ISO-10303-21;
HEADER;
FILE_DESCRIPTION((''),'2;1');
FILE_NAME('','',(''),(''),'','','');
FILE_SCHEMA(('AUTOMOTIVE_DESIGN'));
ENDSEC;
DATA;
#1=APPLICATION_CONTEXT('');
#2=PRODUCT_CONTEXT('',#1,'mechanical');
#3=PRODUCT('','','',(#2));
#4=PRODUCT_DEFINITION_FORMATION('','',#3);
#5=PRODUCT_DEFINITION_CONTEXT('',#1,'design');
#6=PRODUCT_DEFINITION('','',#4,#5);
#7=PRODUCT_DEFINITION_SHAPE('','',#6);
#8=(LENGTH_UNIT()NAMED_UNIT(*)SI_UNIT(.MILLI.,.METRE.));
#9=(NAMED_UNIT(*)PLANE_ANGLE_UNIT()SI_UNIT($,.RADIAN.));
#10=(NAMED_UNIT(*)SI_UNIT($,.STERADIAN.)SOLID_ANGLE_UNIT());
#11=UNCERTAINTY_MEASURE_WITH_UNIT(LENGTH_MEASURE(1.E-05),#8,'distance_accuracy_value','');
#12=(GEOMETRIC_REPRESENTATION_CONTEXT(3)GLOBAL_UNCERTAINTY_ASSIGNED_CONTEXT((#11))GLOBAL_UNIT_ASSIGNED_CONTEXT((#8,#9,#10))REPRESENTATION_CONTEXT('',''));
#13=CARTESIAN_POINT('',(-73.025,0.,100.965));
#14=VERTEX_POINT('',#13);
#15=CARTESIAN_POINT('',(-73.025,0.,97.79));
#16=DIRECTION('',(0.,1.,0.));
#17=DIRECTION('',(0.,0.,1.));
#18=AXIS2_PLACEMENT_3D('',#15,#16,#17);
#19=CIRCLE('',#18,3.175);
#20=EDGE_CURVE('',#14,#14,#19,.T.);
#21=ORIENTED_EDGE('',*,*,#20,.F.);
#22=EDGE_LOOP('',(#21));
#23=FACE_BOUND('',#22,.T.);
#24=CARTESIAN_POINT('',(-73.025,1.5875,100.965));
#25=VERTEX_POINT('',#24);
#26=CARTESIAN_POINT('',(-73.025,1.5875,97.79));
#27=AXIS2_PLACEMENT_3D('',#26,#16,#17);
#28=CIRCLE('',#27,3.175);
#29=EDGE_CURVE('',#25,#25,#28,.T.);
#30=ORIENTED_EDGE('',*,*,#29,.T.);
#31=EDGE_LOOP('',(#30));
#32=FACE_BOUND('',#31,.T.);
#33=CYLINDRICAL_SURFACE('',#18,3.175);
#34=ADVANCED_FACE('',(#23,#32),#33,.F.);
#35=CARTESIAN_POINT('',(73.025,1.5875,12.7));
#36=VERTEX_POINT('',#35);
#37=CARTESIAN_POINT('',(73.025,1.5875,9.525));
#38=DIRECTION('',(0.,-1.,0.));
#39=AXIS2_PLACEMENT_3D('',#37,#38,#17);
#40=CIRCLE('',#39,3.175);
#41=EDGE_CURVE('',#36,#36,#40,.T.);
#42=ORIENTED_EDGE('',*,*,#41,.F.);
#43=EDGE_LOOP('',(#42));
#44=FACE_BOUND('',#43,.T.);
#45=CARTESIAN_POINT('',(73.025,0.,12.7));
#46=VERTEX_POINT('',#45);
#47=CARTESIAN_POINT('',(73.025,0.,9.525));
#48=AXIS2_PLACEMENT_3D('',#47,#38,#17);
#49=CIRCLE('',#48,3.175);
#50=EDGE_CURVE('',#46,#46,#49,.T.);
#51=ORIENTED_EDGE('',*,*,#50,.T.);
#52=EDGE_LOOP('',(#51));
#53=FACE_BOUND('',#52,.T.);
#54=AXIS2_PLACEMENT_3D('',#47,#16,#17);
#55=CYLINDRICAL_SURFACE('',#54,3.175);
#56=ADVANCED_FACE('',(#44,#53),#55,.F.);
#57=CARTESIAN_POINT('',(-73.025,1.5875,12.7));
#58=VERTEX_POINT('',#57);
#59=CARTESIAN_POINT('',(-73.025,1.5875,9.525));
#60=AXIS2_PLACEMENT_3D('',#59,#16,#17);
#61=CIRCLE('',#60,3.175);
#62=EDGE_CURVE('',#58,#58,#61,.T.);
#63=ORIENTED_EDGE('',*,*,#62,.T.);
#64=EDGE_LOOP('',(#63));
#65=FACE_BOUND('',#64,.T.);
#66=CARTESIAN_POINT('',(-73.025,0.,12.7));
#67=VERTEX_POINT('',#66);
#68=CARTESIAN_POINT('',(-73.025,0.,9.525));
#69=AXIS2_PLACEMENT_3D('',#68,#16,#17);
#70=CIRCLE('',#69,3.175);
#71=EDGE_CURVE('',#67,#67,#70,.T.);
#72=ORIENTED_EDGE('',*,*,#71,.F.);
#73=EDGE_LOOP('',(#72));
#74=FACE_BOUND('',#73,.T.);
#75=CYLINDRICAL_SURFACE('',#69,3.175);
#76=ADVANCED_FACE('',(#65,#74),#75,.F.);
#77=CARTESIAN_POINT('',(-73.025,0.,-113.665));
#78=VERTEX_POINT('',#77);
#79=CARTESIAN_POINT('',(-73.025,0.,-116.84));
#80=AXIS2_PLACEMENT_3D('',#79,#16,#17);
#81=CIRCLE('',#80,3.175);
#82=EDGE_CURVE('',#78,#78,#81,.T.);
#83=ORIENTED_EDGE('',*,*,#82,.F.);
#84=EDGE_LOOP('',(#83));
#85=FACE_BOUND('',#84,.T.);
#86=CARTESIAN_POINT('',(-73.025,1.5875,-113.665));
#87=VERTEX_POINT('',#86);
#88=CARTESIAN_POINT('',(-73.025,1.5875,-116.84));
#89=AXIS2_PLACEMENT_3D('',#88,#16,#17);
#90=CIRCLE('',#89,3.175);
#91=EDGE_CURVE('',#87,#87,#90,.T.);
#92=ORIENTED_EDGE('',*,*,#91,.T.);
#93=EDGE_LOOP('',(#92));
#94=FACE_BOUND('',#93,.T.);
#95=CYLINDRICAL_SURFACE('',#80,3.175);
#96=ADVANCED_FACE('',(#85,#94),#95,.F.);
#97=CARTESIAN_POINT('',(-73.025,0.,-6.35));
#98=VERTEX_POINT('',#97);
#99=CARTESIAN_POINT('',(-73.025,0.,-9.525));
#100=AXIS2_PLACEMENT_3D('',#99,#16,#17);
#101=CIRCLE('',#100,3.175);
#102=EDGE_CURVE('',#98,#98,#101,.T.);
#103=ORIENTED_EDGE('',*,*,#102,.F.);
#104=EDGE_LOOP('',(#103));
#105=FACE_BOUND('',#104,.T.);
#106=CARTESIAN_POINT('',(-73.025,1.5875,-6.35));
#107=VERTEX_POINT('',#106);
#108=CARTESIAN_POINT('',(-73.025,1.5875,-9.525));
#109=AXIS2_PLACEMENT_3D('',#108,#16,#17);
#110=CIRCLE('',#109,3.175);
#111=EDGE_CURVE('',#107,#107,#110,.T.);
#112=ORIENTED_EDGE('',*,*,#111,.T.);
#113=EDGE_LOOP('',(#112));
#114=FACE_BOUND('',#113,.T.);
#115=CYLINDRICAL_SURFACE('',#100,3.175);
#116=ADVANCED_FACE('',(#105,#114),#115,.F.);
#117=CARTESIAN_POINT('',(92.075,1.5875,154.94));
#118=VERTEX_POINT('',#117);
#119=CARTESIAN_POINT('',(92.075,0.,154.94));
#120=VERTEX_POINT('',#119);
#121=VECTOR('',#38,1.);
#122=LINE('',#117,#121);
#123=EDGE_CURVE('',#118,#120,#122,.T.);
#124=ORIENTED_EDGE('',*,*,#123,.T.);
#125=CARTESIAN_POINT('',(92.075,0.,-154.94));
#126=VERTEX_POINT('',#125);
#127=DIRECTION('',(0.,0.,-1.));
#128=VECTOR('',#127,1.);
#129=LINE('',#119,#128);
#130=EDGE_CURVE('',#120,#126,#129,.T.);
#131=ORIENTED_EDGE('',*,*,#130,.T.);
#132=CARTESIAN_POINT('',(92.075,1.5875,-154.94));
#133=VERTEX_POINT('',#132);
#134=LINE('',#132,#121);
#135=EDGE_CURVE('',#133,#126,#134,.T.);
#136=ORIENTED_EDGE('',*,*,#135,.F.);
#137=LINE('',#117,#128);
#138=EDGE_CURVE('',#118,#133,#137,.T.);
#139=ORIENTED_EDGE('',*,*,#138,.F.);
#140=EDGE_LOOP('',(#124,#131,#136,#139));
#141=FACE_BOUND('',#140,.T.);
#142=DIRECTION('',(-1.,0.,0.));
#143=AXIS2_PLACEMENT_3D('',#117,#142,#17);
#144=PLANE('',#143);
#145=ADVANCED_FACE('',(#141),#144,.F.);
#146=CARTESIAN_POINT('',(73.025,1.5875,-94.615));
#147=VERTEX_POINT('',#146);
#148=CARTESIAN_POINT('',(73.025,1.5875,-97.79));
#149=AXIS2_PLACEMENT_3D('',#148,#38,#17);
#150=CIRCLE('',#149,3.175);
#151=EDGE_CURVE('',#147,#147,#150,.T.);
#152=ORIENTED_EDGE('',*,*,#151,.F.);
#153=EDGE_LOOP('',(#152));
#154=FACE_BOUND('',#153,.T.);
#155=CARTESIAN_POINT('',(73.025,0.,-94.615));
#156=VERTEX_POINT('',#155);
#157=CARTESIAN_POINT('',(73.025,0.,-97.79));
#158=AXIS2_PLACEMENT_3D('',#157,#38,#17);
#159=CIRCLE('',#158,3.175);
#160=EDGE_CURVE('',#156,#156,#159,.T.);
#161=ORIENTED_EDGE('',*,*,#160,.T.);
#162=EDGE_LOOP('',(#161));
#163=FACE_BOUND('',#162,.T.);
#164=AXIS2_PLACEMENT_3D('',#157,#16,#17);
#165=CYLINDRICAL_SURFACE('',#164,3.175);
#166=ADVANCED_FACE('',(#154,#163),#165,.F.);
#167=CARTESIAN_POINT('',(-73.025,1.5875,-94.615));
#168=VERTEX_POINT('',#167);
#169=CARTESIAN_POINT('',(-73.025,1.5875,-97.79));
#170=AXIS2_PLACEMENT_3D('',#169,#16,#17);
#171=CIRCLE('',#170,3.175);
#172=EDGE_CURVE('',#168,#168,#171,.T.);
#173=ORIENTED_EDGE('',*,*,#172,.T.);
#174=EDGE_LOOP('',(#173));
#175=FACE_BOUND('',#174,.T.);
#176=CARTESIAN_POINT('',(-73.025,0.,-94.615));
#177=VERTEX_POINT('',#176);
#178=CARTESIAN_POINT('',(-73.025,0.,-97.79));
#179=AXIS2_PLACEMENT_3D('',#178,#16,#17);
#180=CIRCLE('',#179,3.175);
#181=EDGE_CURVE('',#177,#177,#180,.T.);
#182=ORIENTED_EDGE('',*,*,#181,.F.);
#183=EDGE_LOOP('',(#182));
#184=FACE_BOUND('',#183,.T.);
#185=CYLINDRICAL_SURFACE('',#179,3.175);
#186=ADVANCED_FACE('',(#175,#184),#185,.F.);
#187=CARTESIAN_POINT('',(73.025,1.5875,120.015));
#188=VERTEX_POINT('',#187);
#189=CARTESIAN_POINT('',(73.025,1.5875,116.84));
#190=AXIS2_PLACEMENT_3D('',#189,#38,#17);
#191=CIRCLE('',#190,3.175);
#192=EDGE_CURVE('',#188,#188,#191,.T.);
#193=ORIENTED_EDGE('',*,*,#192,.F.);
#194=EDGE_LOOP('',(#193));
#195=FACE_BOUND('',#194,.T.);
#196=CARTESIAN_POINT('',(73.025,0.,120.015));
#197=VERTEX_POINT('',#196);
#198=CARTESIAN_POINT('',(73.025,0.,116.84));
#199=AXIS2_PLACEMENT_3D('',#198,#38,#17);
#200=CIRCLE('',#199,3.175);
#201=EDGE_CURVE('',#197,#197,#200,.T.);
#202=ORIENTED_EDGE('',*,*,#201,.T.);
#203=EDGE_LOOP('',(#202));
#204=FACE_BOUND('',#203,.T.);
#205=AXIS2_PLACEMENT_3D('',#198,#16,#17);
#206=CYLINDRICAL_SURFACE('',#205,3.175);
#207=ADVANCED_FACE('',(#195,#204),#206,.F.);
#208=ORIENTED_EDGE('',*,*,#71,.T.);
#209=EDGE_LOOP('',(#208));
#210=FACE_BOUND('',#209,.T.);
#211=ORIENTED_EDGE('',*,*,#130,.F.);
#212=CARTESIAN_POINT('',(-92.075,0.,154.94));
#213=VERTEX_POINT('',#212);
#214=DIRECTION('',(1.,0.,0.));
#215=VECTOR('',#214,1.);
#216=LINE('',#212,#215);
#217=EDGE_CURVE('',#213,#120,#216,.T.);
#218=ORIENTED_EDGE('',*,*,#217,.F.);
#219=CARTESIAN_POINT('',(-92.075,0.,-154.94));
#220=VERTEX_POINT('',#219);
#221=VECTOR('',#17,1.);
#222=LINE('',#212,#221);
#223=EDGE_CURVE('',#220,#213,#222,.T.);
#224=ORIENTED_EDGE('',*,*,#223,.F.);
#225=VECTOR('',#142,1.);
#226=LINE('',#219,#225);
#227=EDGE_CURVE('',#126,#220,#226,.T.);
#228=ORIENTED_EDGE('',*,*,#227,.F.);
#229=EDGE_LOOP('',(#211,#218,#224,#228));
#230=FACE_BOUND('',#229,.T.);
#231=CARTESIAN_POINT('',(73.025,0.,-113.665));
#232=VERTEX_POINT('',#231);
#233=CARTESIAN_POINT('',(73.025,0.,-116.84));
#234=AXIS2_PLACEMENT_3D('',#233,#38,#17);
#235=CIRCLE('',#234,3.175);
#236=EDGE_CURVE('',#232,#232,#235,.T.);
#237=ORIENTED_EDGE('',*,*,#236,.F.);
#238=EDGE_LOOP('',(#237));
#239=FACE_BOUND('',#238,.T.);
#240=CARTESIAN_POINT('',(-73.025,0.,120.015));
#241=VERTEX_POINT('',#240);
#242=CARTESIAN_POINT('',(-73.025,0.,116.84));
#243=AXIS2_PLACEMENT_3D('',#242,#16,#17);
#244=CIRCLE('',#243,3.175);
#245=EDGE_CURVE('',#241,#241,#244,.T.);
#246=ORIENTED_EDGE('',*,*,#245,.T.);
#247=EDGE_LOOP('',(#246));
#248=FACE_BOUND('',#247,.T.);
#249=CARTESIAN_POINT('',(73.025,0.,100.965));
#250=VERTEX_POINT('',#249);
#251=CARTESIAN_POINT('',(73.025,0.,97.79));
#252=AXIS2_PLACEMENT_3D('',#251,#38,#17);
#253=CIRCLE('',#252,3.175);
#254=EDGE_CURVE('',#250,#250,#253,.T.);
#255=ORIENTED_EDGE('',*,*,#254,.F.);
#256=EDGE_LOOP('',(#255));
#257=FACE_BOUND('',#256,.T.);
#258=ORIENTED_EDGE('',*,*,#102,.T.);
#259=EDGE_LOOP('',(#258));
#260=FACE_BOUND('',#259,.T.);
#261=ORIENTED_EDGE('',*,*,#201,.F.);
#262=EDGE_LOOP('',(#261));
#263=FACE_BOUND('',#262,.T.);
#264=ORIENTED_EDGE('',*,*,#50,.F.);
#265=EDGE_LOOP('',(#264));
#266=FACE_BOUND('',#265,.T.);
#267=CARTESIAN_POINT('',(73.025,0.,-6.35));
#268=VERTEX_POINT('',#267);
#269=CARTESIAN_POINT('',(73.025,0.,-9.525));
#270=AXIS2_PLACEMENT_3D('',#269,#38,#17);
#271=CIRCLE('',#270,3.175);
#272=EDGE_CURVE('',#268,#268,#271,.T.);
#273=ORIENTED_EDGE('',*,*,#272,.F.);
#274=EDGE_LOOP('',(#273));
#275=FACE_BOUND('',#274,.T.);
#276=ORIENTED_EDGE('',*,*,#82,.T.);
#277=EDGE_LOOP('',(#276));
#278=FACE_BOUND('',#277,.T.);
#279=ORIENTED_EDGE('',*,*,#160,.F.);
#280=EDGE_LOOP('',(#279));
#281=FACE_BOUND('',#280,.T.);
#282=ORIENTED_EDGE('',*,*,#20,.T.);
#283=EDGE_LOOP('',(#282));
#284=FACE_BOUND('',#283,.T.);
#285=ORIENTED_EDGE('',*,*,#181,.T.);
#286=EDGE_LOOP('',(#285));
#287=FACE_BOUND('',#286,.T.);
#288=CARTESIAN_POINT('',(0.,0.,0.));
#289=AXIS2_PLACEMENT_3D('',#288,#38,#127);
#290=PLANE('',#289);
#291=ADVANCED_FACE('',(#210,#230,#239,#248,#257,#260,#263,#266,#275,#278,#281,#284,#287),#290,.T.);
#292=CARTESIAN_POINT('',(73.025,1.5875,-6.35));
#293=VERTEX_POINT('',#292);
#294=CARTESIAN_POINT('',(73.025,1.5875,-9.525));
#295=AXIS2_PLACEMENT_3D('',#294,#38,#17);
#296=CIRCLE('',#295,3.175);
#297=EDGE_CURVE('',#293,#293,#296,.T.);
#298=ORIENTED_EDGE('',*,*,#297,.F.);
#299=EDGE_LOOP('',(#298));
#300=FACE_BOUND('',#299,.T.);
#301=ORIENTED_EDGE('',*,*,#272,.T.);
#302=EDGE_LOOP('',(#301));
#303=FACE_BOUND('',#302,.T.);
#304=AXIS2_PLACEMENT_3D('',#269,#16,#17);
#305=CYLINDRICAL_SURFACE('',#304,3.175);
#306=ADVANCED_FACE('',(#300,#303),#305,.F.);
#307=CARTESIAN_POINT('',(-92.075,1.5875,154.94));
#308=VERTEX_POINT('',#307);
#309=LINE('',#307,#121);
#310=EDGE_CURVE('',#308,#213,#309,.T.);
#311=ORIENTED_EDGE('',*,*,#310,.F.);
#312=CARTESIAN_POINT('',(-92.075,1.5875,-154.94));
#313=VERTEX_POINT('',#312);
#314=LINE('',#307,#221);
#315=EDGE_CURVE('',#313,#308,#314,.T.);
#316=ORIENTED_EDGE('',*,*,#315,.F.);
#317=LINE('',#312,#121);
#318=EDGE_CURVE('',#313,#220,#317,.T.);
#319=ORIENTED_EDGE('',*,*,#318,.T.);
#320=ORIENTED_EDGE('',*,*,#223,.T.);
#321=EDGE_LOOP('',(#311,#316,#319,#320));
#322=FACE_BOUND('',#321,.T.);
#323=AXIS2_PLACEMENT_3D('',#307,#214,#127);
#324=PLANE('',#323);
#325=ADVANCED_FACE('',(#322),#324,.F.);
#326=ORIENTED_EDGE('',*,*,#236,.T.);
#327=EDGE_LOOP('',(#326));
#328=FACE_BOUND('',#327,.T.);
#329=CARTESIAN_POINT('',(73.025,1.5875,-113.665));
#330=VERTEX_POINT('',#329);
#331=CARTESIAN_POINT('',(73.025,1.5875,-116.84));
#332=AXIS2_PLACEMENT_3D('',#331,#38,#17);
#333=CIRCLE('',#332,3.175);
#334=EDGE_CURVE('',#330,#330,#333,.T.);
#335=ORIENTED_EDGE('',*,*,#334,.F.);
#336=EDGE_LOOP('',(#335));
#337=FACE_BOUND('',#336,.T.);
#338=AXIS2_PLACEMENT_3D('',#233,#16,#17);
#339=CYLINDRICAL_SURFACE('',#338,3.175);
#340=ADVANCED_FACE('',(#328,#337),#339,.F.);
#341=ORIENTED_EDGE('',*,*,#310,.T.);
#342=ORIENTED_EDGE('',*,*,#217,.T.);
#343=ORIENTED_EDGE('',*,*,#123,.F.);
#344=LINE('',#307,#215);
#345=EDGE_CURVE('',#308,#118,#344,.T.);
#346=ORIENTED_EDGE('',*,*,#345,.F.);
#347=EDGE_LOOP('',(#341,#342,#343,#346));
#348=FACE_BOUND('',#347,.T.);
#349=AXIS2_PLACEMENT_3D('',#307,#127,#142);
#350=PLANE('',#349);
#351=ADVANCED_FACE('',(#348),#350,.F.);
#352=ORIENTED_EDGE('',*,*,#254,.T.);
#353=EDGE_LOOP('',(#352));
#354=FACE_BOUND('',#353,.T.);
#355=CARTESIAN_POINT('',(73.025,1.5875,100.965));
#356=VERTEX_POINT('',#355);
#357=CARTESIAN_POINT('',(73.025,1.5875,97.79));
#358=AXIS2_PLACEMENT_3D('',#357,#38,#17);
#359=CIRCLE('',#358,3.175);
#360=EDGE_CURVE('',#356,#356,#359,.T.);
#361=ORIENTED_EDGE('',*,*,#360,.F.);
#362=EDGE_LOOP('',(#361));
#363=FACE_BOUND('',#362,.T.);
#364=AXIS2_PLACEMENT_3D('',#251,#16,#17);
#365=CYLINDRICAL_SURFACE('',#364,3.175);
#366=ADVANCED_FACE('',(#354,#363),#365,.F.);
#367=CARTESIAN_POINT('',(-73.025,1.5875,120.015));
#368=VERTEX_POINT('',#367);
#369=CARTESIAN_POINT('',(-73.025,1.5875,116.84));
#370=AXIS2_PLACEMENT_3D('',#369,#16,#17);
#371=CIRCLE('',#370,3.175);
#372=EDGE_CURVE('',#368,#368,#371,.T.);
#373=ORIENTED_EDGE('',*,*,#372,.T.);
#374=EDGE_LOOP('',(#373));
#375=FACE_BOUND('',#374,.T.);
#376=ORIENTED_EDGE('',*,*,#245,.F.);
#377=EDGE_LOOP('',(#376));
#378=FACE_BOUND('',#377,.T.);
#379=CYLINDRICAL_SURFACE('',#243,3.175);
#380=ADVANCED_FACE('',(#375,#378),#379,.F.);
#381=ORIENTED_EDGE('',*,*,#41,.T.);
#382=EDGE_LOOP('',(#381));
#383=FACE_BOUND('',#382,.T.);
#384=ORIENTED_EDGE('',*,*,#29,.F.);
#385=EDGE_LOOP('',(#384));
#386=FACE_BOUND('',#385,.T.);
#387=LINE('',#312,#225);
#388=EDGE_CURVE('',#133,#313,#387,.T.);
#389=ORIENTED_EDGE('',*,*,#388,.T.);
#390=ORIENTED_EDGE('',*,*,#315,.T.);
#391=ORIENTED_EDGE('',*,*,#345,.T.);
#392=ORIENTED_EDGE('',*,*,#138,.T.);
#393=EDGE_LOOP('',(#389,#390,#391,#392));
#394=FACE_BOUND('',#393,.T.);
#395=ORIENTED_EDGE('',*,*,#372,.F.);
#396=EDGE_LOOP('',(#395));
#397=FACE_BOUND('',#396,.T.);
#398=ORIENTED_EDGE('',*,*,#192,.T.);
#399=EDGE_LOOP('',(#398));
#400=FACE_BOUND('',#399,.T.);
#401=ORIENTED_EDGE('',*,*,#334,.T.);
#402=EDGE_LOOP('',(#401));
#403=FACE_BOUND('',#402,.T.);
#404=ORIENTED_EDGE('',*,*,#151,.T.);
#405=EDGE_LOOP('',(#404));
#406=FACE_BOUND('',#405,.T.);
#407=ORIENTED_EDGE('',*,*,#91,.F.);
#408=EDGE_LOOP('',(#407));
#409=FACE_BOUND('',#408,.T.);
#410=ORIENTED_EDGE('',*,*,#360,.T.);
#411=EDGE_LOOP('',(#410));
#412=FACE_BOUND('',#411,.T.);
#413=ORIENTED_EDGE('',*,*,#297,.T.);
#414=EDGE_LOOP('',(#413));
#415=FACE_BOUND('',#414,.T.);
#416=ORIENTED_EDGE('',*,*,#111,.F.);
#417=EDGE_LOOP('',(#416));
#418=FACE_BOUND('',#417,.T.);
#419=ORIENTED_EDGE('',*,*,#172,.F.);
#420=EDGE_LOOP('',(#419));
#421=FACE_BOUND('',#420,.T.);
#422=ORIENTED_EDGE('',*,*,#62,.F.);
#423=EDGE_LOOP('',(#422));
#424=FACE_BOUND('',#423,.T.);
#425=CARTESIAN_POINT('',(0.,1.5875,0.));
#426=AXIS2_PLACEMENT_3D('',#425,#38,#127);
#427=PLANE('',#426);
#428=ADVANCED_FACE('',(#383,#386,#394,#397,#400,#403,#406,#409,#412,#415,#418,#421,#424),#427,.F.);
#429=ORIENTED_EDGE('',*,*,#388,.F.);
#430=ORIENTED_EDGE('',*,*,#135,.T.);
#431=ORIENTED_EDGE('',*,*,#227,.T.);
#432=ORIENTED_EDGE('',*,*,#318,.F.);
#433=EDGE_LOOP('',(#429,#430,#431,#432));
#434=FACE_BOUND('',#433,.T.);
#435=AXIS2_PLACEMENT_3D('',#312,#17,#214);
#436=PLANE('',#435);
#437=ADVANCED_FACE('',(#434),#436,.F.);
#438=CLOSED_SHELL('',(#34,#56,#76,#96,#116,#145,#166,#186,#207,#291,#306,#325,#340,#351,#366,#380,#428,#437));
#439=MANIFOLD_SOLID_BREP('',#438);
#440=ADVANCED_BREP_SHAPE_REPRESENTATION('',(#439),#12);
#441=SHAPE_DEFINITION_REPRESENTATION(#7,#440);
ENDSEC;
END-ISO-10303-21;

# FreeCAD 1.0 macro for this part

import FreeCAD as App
import Part
import Sketcher

V = App.Vector
Q = App.Units.Quantity


def add_polygon(sketch, points):
    """Adds a closed chain of lines whose ends are joined by coincident constraints."""
    first, n = sketch.GeometryCount, len(points)
    for a, b in zip(points, points[1:] + points[:1]):
        sketch.addGeometry(Part.LineSegment(App.Vector(*a, 0), App.Vector(*b, 0)), False)
    for i in range(n):
        sketch.addConstraint(Sketcher.Constraint("Coincident", first + i, 2, first + (i + 1) % n, 1))

doc = App.newDocument("Part")
body = doc.addObject("PartDesign::Body", "Body")

sketch1 = body.newObject("Sketcher::SketchObject", "Sketch")
sketch1.AttachmentSupport = (doc.getObject("XZ_Plane"), [""])
sketch1.MapMode = "FlatFace"
add_polygon(sketch1, [(-92, -155), (-92, 155), (92, 155), (92, -155)])
sketch1.addConstraint([
    Sketcher.Constraint("Vertical", 0),
    Sketcher.Constraint("Horizontal", 1),
    Sketcher.Constraint("Vertical", 2),
    Sketcher.Constraint("Horizontal", 3),
    Sketcher.Constraint("Symmetric", 0, 2, 2, 2, -1, 1),
    Sketcher.Constraint("DistanceY", 0, 1, 0, 2, Q("12.2 in")),
    Sketcher.Constraint("DistanceX", 1, 1, 1, 2, Q("7.25 in")),
])
pad1 = body.newObject("PartDesign::Pad", "Pad")
pad1.Profile = sketch1
pad1.Length = Q("0.0625 in")
pad1.Reversed = True

sketch2 = body.newObject("Sketcher::SketchObject", "Sketch001")
sketch2.AttachmentSupport = (doc.getObject("XZ_Plane"), [""])
sketch2.MapMode = "FlatFace"
sketch2.AttachmentOffset = App.Placement(V(0, 0, -0.0625 * 25.4), App.Rotation())
sketch2.addGeometry([
    Part.Circle(V(-73, -9.5, 0), V(0, 0, 1), 3.2),
    Part.Circle(V(-73, 9.5, 0), V(0, 0, 1), 3.2),
    Part.Circle(V(-73, -116.8, 0), V(0, 0, 1), 3.2),
    Part.Circle(V(-73, -97.8, 0), V(0, 0, 1), 3.2),
    Part.Circle(V(-73, 116.8, 0), V(0, 0, 1), 3.2),
    Part.Circle(V(-73, 97.8, 0), V(0, 0, 1), 3.2),
], False)
sketch2.addConstraint([
    Sketcher.Constraint("Equal", 0, 1),
    Sketcher.Constraint("Equal", 1, 2),
    Sketcher.Constraint("Equal", 2, 3),
    Sketcher.Constraint("Equal", 3, 4),
    Sketcher.Constraint("Equal", 4, 5),
    Sketcher.Constraint("Symmetric", 0, 3, 1, 3, -1),
    Sketcher.Constraint("Symmetric", 2, 3, 4, 3, -1),
    Sketcher.Constraint("Symmetric", 3, 3, 5, 3, -1),
    Sketcher.Constraint("Vertical", 1, 3, 2, 3),
    Sketcher.Constraint("Vertical", 2, 3, 3, 3),
    Sketcher.Constraint("Diameter", 0, Q("0.25 in")),
    Sketcher.Constraint("DistanceY", 2, 3, -1, 1, Q("4.6 in")),
    Sketcher.Constraint("DistanceY", 3, 3, 5, 3, Q("7.7 in")),
    Sketcher.Constraint("DistanceY", 0, 3, 1, 3, Q("0.75 in")),
    Sketcher.Constraint("DistanceX", 0, 3, -1, 1, Q("2.875 in")),
])
pocket1 = body.newObject("PartDesign::Pocket", "Pocket")
pocket1.Profile = sketch2
pocket1.Type = "ThroughAll"
pocket1.Reversed = True
doc.recompute()

mirrored = body.newObject("PartDesign::Mirrored", "Mirrored")
mirrored.Originals = [pocket1]
mirrored.MirrorPlane = (doc.getObject("YZ_Plane"), [""])
body.Tip = mirrored

doc.recompute()
